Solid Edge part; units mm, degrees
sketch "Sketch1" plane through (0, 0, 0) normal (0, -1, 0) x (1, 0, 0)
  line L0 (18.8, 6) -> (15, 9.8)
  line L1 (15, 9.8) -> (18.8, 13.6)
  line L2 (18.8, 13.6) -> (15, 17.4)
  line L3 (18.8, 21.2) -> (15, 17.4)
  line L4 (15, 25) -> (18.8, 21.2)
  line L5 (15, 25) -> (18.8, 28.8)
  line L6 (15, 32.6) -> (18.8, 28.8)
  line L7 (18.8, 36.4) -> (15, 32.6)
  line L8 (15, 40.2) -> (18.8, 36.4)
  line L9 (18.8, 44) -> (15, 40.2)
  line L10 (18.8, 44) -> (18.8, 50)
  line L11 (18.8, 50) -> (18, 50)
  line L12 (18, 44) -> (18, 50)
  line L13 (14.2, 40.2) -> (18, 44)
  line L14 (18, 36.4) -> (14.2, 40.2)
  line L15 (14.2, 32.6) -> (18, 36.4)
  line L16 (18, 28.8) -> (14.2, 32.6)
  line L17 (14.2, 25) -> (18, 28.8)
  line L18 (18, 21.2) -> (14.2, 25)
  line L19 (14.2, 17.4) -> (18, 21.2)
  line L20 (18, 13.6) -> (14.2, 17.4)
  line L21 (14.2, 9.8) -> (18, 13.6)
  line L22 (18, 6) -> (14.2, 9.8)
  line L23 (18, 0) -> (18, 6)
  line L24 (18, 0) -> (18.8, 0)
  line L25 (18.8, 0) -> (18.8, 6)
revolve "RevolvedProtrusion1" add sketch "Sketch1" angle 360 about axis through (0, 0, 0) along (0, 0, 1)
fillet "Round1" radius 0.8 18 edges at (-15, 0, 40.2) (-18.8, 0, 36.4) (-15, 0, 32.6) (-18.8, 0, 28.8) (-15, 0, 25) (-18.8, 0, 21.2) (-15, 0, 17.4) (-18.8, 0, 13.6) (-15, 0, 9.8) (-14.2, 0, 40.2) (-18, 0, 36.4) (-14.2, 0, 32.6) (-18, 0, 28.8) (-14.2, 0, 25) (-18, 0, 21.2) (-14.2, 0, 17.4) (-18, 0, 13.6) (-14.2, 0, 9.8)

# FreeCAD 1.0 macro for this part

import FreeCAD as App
import Part
import Sketcher
from FreeCAD import Vector
Q = App.Units.Quantity


def edges_at(feature, points):
    """Names of the edges that pass closest to the given points."""
    edges = feature.Shape.Edges
    near = lambda p: min(range(len(edges)), key=lambda i: edges[i].distToShape(Part.Vertex(*p))[0])
    return sorted({f"Edge{near(p) + 1}" for p in points})


def add_polygon(sketch, points):
    """Adds a closed chain of lines whose ends are joined by coincident constraints."""
    first, n = sketch.GeometryCount, len(points)
    for a, b in zip(points, points[1:] + points[:1]):
        sketch.addGeometry(Part.LineSegment(App.Vector(*a, 0), App.Vector(*b, 0)), False)
    for i in range(n):
        sketch.addConstraint(Sketcher.Constraint("Coincident", first + i, 2, first + (i + 1) % n, 1))

doc = App.newDocument("Part")
body = doc.addObject("PartDesign::Body", "Body")

sketch1 = body.newObject("Sketcher::SketchObject", "Sketch")
sketch1.AttachmentSupport = (doc.getObject("XZ_Plane"), [""])
sketch1.MapMode = "FlatFace"
add_polygon(sketch1, [(18.8, 0), (18.8, 6), (15, 9.8), (18.8, 13.6), (15, 17.4), (18.8, 21.2), (15, 25), (18.8, 28.8), (15, 32.6), (18.8, 36.4), (15, 40.2), (18.8, 44), (18.8, 50), (18, 50), (18, 44), (14.2, 40.2), (18, 36.4), (14.2, 32.6), (18, 28.8), (14.2, 25), (18, 21.2), (14.2, 17.4), (18, 13.6), (14.2, 9.8), (18, 6), (18, 0)])
sketch1.addConstraint([
    Sketcher.Constraint("Vertical", 0),
    Sketcher.Constraint("Vertical", 11),
    Sketcher.Constraint("Horizontal", 12),
    Sketcher.Constraint("Vertical", 13),
    Sketcher.Constraint("Vertical", 24),
    Sketcher.Constraint("Horizontal", 25),
    Sketcher.Constraint("PointOnObject", 24, 2, -1),
    Sketcher.Constraint("Perpendicular", 1, 2),
    Sketcher.Constraint("Perpendicular", 2, 3),
    Sketcher.Constraint("Perpendicular", 3, 4),
    Sketcher.Constraint("Perpendicular", 4, 5),
    Sketcher.Constraint("Perpendicular", 5, 6),
    Sketcher.Constraint("Perpendicular", 6, 7),
    Sketcher.Constraint("Perpendicular", 7, 8),
    Sketcher.Constraint("Perpendicular", 8, 9),
    Sketcher.Constraint("Perpendicular", 9, 10),
    Sketcher.Constraint("Parallel", 10, 14),
    Sketcher.Constraint("Perpendicular", 14, 15),
    Sketcher.Constraint("Perpendicular", 15, 16),
    Sketcher.Constraint("Perpendicular", 16, 17),
    Sketcher.Constraint("Perpendicular", 17, 18),
    Sketcher.Constraint("Perpendicular", 18, 19),
    Sketcher.Constraint("Perpendicular", 19, 20),
    Sketcher.Constraint("Perpendicular", 20, 21),
    Sketcher.Constraint("Perpendicular", 21, 22),
    Sketcher.Constraint("Perpendicular", 22, 23),
    Sketcher.Constraint("Horizontal", 10, 2, 13, 2),
    Sketcher.Constraint("Horizontal", 9, 2, 14, 2),
    Sketcher.Constraint("Horizontal", 8, 2, 15, 2),
    Sketcher.Constraint("Horizontal", 7, 2, 16, 2),
    Sketcher.Constraint("Horizontal", 6, 2, 17, 2),
    Sketcher.Constraint("Horizontal", 5, 2, 18, 2),
    Sketcher.Constraint("Horizontal", 4, 2, 19, 2),
    Sketcher.Constraint("Horizontal", 3, 2, 20, 2),
    Sketcher.Constraint("Horizontal", 2, 2, 21, 2),
    Sketcher.Constraint("Horizontal", 1, 2, 22, 2),
    Sketcher.Constraint("Horizontal", 0, 2, 23, 2),
    Sketcher.Constraint("Vertical", 0, 2, 2, 2),
    Sketcher.Constraint("Vertical", 1, 2, 3, 2),
    Sketcher.Constraint("Vertical", 2, 2, 4, 2),
    Sketcher.Constraint("Vertical", 3, 2, 5, 2),
    Sketcher.Constraint("Vertical", 4, 2, 6, 2),
    Sketcher.Constraint("Vertical", 5, 2, 7, 2),
    Sketcher.Constraint("Vertical", 6, 2, 8, 2),
    Sketcher.Constraint("Vertical", 7, 2, 9, 2),
    Sketcher.Constraint("Vertical", 8, 2, 10, 2),
    Sketcher.Constraint("Equal", 0, 11),
    Sketcher.Constraint("Equal", 1, 2),
    Sketcher.Constraint("DistanceY", 0, 1, 0, 2, Q("6 mm")),
    Sketcher.Constraint("DistanceX", 12, 2, 12, 1, Q("0.8 mm")),
    Sketcher.Constraint("DistanceX", -1, 1, 1, 2, Q("15 mm")),
    Sketcher.Constraint("DistanceY", -1, 1, 5, 2, Q("25 mm")),
])
revolution = body.newObject("PartDesign::Revolution", "Revolution")
revolution.Profile = sketch1
revolution.ReferenceAxis = (sketch1, ["V_Axis"])
revolution.Angle = 360
doc.recompute()

fillet = body.newObject("PartDesign::Fillet", "Fillet")
fillet.Base = (revolution, edges_at(revolution, [
    (-15, 0, 40.2),
    (-18.8, 0, 36.4),
    (-15, 0, 32.6),
    (-18.8, 0, 28.8),
    (-15, 0, 25),
    (-18.8, 0, 21.2),
    (-15, 0, 17.4),
    (-18.8, 0, 13.6),
    (-15, 0, 9.8),
    (-14.2, 0, 40.2),
    (-18, 0, 36.4),
    (-14.2, 0, 32.6),
    (-18, 0, 28.8),
    (-14.2, 0, 25),
    (-18, 0, 21.2),
    (-14.2, 0, 17.4),
    (-18, 0, 13.6),
    (-14.2, 0, 9.8),
]))
fillet.Radius = 0.8

doc.recompute()
